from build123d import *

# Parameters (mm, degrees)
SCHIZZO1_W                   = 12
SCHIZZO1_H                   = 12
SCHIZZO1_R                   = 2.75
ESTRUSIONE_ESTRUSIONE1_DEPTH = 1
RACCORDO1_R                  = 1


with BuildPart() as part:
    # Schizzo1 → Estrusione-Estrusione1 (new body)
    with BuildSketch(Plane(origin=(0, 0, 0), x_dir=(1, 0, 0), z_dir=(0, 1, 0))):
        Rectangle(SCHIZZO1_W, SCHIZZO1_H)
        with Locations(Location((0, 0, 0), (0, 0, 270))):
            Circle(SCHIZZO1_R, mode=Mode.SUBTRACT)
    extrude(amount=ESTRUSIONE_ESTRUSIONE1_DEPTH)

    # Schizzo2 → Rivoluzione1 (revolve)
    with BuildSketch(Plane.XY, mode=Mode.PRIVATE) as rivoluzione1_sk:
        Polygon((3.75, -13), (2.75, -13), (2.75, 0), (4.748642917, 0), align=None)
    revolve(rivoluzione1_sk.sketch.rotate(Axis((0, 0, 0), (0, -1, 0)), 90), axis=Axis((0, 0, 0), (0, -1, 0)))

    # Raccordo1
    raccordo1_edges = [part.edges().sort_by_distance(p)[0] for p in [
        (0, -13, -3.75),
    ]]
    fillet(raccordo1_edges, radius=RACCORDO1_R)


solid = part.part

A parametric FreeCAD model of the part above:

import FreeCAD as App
import Part
import Sketcher

V = App.Vector


def edges_at(feature, points):
    """Names of the edges that pass closest to the given points."""
    edges = feature.Shape.Edges
    near = lambda p: min(range(len(edges)), key=lambda i: edges[i].distToShape(Part.Vertex(*p))[0])
    return sorted({f"Edge{near(p) + 1}" for p in points})


def add_polygon(sketch, points):
    """Adds a closed chain of lines whose ends are joined by coincident constraints."""
    first, n = sketch.GeometryCount, len(points)
    for a, b in zip(points, points[1:] + points[:1]):
        sketch.addGeometry(Part.LineSegment(App.Vector(*a, 0), App.Vector(*b, 0)), False)
    for i in range(n):
        sketch.addConstraint(Sketcher.Constraint("Coincident", first + i, 2, first + (i + 1) % n, 1))

doc = App.newDocument("Part")
params = doc.addObject("Spreadsheet::Sheet", "Params")
for row, (alias, value) in enumerate([
    ("sketch1_diameter", "5.5 mm"),
    ("sketch1_width", "12 mm"),
    ("pad1_length", "1 mm"),
    ("sketch2_width", "1 mm"),
    ("sketch2_height", "13 mm"),
    ("revolution_angle", "360 deg"),
    ("fillet_radius", "1 mm"),
], start=1):
    params.set(f"A{row}", alias)
    params.set(f"B{row}", "=" + value)
    params.setAlias(f"B{row}", alias)

body = doc.addObject("PartDesign::Body", "Body")

# Sketch on XZ plane
sketch1 = doc.addObject("Sketcher::SketchObject", "Sketch")
body.addObject(sketch1)
sketch1.AttachmentSupport = (doc.XZ_Plane, [""])
sketch1.MapMode = "FlatFace"
add_polygon(sketch1, [(-6, -6), (-6, 6), (6, 6), (6, -6)])  # lines 0-3
sketch1.addGeometry(Part.Circle(V(0, 0, 0), V(0, 0, 1), 2.75), False)  # 4
sketch1.addConstraint([
    Sketcher.Constraint("Vertical", 0),
    Sketcher.Constraint("Horizontal", 1),
    Sketcher.Constraint("Vertical", 2),
    Sketcher.Constraint("Horizontal", 3),
    Sketcher.Constraint("Coincident", 4, 3, -1, 1),
    Sketcher.Constraint("Symmetric", 0, 2, 2, 2, -1, 1),
    Sketcher.Constraint("Equal", 3, 0),
    Sketcher.Constraint("Diameter", 4, 5.5),
    Sketcher.Constraint("DistanceX", 1, 1, 1, 2, 12.0),
])
sketch1.setExpression("Constraints[11]", "Params.sketch1_diameter")
sketch1.setExpression("Constraints[12]", "Params.sketch1_width")
pad1 = doc.addObject("PartDesign::Pad", "Pad")
body.addObject(pad1)
pad1.Profile = sketch1
pad1.setExpression("Length", "Params.pad1_length")
pad1.Reversed = True

# Sketch on XY plane
sketch2 = doc.addObject("Sketcher::SketchObject", "Sketch001")
body.addObject(sketch2)
sketch2.AttachmentSupport = (doc.XY_Plane, [""])
sketch2.MapMode = "FlatFace"
add_polygon(sketch2, [(2.75, -13), (3.75, -13), (4.748643, 0), (2.75, 0)])  # lines 0-3
sketch2.addConstraint([
    Sketcher.Constraint("Horizontal", 0),
    Sketcher.Constraint("Horizontal", 2),
    Sketcher.Constraint("Vertical", 3),
    Sketcher.Constraint("PointOnObject", 1, 2, -1),
    Sketcher.Constraint("DistanceX", 0, 1, 0, 2, 1.0),
    Sketcher.Constraint("DistanceY", 3, 2, 3, 1, 13.0),
    Sketcher.Constraint("DistanceX", -1, 1, 0, 2, 3.75),
    Sketcher.Constraint("Distance", 1, 13.038301),
])
sketch2.setExpression("Constraints[8]", "Params.sketch2_width")
sketch2.setExpression("Constraints[9]", "Params.sketch2_height")
revolution = doc.addObject("PartDesign::Revolution", "Revolution")
body.addObject(revolution)
revolution.Profile = sketch2
revolution.ReferenceAxis = (sketch2, ["V_Axis"])
revolution.setExpression("Angle", "Params.revolution_angle")
doc.recompute()

fillet = doc.addObject("PartDesign::Fillet", "Fillet")
body.addObject(fillet)
fillet.Base = (revolution, edges_at(revolution, [(0, -13, -3.75)]))
fillet.setExpression("Radius", "Params.fillet_radius")

doc.recompute()
